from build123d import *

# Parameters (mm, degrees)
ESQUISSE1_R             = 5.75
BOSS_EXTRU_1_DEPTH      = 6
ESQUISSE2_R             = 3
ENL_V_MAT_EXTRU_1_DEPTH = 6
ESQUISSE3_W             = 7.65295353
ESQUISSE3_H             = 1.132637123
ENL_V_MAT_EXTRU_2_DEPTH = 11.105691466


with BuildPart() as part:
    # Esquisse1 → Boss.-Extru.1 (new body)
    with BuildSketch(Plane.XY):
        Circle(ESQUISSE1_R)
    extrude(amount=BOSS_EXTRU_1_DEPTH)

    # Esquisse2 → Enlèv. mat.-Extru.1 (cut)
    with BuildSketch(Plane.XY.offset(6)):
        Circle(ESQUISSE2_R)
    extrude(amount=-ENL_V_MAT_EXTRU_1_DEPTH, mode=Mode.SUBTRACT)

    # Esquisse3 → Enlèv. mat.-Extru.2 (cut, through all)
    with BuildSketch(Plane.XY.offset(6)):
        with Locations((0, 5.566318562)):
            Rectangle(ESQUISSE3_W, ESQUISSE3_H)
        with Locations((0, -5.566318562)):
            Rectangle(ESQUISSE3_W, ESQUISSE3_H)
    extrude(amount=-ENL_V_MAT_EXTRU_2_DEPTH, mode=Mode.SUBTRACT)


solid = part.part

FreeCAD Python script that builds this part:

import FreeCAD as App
import Part
import Sketcher
from FreeCAD import Vector

doc = App.newDocument("Part")
body = doc.addObject("PartDesign::Body", "Body")

# Sketch on XY plane
sketch1 = doc.addObject("Sketcher::SketchObject", "Sketch")
body.addObject(sketch1)
sketch1.AttachmentSupport = (doc.XY_Plane, [""])
sketch1.MapMode = "FlatFace"
sketch1.addGeometry(Part.Circle(Vector(0, 0, 0), Vector(0, 0, 1), 6), False)
sketch1.addConstraint([
    Sketcher.Constraint("Coincident", 0, 3, -1, 1),
    Sketcher.Constraint("Diameter", 0, 11.5),
])
pad1 = doc.addObject("PartDesign::Pad", "Pad")
body.addObject(pad1)
pad1.Profile = sketch1
pad1.Length = 6

# Sketch on XY plane
sketch2 = doc.addObject("Sketcher::SketchObject", "Sketch001")
body.addObject(sketch2)
sketch2.AttachmentSupport = (doc.XY_Plane, [""])
sketch2.MapMode = "FlatFace"
sketch2.AttachmentOffset = App.Placement(Vector(0, 0, 6), App.Rotation())
sketch2.addGeometry(Part.Circle(Vector(0, 0, 0), Vector(0, 0, 1), 3), False)
sketch2.addConstraint([
    Sketcher.Constraint("Coincident", 0, 3, -1, 1),
    Sketcher.Constraint("Diameter", 0, 6.0),
])
pocket1 = doc.addObject("PartDesign::Pocket", "Pocket")
body.addObject(pocket1)
pocket1.Profile = sketch2
pocket1.Length = 6

# Sketch on XY plane
sketch3 = doc.addObject("Sketcher::SketchObject", "Sketch002")
body.addObject(sketch3)
sketch3.AttachmentSupport = (doc.XY_Plane, [""])
sketch3.MapMode = "FlatFace"
sketch3.AttachmentOffset = App.Placement(Vector(0, 0, 6), App.Rotation())
sketch3.addGeometry([
    Part.LineSegment(Vector(-3.8, 6.1, 0), Vector(-3.8, 5, 0)),  # 0
    Part.LineSegment(Vector(-3.8, 5, 0), Vector(3.8, 5, 0)),  # 1
    Part.LineSegment(Vector(3.8, 5, 0), Vector(3.8, 6.1, 0)),  # 2
    Part.LineSegment(Vector(3.8, 6.1, 0), Vector(-3.8, 6.1, 0)),  # 3
    Part.LineSegment(Vector(-3.8, -5, 0), Vector(-3.8, -6.1, 0)),  # 4
    Part.LineSegment(Vector(-3.8, -6.1, 0), Vector(3.8, -6.1, 0)),  # 5
    Part.LineSegment(Vector(3.8, -6.1, 0), Vector(3.8, -5, 0)),  # 6
    Part.LineSegment(Vector(3.8, -5, 0), Vector(-3.8, -5, 0)),  # 7
], False)
sketch3.addConstraint([
    Sketcher.Constraint("Coincident", 0, 2, 1, 1),
    Sketcher.Constraint("Coincident", 1, 2, 2, 1),
    Sketcher.Constraint("Coincident", 2, 2, 3, 1),
    Sketcher.Constraint("Coincident", 3, 2, 0, 1),
    Sketcher.Constraint("Coincident", 4, 2, 5, 1),
    Sketcher.Constraint("Coincident", 5, 2, 6, 1),
    Sketcher.Constraint("Coincident", 6, 2, 7, 1),
    Sketcher.Constraint("Coincident", 7, 2, 4, 1),
    Sketcher.Constraint("Vertical", 0),
    Sketcher.Constraint("Horizontal", 1),
    Sketcher.Constraint("Vertical", 2),
    Sketcher.Constraint("Horizontal", 3),
    Sketcher.Constraint("Vertical", 4),
    Sketcher.Constraint("Horizontal", 5),
    Sketcher.Constraint("Vertical", 6),
    Sketcher.Constraint("Horizontal", 7),
    Sketcher.Constraint("Symmetric", 2, 2, 4, 2, -1, 1),
    Sketcher.Constraint("Symmetric", 0, 2, 6, 2, -1, 1),
    Sketcher.Constraint("Vertical", 3, 2, 4, 2),
    Sketcher.Constraint("DistanceY", -1, 1, 0, 2, 5.0),
    Sketcher.Constraint("DistanceX", 1, 1, 1, 2, 7.652954),
    Sketcher.Constraint("DistanceY", 0, 2, 0, 1, 1.132637),
])
pocket2 = doc.addObject("PartDesign::Pocket", "Pocket001")
body.addObject(pocket2)
pocket2.Profile = sketch3
pocket2.Type = "ThroughAll"

doc.recompute()
